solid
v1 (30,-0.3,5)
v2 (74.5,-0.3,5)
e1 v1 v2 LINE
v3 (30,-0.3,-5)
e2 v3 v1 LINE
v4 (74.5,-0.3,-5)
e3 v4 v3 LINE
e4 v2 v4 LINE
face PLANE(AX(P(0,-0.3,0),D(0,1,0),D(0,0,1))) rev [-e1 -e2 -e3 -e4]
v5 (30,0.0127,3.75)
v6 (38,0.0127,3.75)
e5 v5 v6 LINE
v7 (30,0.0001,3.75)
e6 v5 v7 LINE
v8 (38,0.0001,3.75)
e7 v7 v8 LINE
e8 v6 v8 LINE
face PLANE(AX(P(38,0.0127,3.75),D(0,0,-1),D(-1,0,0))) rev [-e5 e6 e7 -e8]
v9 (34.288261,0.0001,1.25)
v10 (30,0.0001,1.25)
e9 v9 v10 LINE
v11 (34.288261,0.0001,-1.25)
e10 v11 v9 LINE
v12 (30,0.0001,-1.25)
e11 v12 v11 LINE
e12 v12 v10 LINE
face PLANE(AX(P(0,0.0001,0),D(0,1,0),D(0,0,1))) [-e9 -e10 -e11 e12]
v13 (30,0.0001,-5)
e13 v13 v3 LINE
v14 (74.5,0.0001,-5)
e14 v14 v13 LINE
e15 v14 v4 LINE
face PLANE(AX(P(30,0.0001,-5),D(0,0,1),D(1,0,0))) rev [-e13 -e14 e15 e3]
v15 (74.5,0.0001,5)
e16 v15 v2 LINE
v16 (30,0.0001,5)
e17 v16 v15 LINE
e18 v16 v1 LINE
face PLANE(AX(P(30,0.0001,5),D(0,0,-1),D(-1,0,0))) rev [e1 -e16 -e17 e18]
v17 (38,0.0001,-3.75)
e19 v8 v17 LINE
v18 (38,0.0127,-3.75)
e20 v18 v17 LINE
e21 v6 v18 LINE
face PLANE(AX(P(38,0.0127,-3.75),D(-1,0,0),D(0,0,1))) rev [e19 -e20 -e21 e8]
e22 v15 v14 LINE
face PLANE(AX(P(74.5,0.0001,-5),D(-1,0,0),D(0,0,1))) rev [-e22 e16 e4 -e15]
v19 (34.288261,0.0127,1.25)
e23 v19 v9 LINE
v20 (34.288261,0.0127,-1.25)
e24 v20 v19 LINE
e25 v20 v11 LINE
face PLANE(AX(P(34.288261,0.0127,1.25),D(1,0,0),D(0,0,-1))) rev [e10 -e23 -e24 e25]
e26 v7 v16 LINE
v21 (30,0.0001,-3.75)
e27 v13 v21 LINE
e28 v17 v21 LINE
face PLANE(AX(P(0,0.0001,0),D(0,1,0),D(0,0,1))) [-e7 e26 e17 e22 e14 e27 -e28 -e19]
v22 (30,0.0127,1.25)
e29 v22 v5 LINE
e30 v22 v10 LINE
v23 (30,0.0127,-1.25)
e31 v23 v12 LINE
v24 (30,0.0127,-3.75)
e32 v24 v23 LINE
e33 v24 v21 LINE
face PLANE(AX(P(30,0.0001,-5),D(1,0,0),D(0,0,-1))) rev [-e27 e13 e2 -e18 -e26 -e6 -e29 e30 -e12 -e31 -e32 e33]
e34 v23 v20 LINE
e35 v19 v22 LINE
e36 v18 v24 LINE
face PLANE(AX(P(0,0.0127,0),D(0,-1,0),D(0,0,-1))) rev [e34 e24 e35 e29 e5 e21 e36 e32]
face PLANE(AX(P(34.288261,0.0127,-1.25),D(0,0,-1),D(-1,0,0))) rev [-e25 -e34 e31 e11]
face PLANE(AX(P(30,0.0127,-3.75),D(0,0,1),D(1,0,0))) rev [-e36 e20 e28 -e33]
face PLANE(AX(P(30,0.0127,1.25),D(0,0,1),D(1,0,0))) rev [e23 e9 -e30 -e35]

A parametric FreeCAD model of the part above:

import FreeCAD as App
import Part
import Sketcher
from FreeCAD import Vector

doc = App.newDocument("Part")
body = doc.addObject("PartDesign::Body", "Body")

# Sketch on XZ plane
sketch1 = body.newObject("Sketcher::SketchObject", "Sketch")
sketch1.AttachmentSupport = (doc.getObject("XZ_Plane"), [""])
sketch1.MapMode = "FlatFace"
sketch1.addGeometry([
    Part.LineSegment(Vector(30, -5, 0), Vector(30, 5, 0)),
    Part.LineSegment(Vector(30, 5, 0), Vector(74, 5, 0)),
    Part.LineSegment(Vector(74, 5, 0), Vector(74, -5, 0)),
    Part.LineSegment(Vector(74, -5, 0), Vector(30, -5, 0)),
], False)
sketch1.addConstraint([
    Sketcher.Constraint("Coincident", 0, 2, 1, 1),
    Sketcher.Constraint("Coincident", 1, 2, 2, 1),
    Sketcher.Constraint("Coincident", 2, 2, 3, 1),
    Sketcher.Constraint("Coincident", 3, 2, 0, 1),
    Sketcher.Constraint("Vertical", 0),
    Sketcher.Constraint("Horizontal", 1),
    Sketcher.Constraint("Vertical", 2),
    Sketcher.Constraint("Horizontal", 3),
    Sketcher.Constraint("DistanceY", 0, 1, 0, 2, 10.0),
    Sketcher.Constraint("DistanceX", 1, 1, 1, 2, 44.5),
    Sketcher.Constraint("DistanceX", -1, 1, 0, 2, 30.0),
    Sketcher.Constraint("DistanceY", -1, 1, 0, 2, 5.0),
])
pad1 = body.newObject("PartDesign::Pad", "Pad")
pad1.Profile = sketch1
pad1.Type = "TwoLengths"
pad1.Length = 0.0001
pad1.Length2 = 0.3
pad1.Reversed = True

# Sketch on XZ plane
sketch2 = body.newObject("Sketcher::SketchObject", "Sketch001")
sketch2.AttachmentSupport = (doc.getObject("XZ_Plane"), [""])
sketch2.MapMode = "FlatFace"
sketch2.AttachmentOffset = App.Placement(Vector(0, 0, -0.0001), App.Rotation())
sketch2.addGeometry([
    Part.LineSegment(Vector(38, -3.8, 0), Vector(30, -3.8, 0)),  # 0
    Part.LineSegment(Vector(30, -3.8, 0), Vector(30, -1.2, 0)),  # 1
    Part.LineSegment(Vector(30, -1.2, 0), Vector(34.3, -1.2, 0)),  # 2
    Part.LineSegment(Vector(34.3, -1.2, 0), Vector(34.3, 1.2, 0)),  # 3
    Part.LineSegment(Vector(34.3, 1.2, 0), Vector(30, 1.2, 0)),  # 4
    Part.LineSegment(Vector(30, 1.2, 0), Vector(30, 3.8, 0)),  # 5
    Part.LineSegment(Vector(30, 3.8, 0), Vector(38, 3.8, 0)),  # 6
    Part.LineSegment(Vector(38, 3.8, 0), Vector(38, -3.8, 0)),  # 7
], False)
sketch2.addConstraint([
    Sketcher.Constraint("Coincident", 0, 2, 1, 1),
    Sketcher.Constraint("Coincident", 1, 2, 2, 1),
    Sketcher.Constraint("Coincident", 2, 2, 3, 1),
    Sketcher.Constraint("Coincident", 3, 2, 4, 1),
    Sketcher.Constraint("Coincident", 4, 2, 5, 1),
    Sketcher.Constraint("Coincident", 5, 2, 6, 1),
    Sketcher.Constraint("Coincident", 6, 2, 7, 1),
    Sketcher.Constraint("Coincident", 7, 2, 0, 1),
    Sketcher.Constraint("Horizontal", 0),
    Sketcher.Constraint("Vertical", 1),
    Sketcher.Constraint("Horizontal", 2),
    Sketcher.Constraint("Vertical", 3),
    Sketcher.Constraint("Horizontal", 4),
    Sketcher.Constraint("Vertical", 5),
    Sketcher.Constraint("Horizontal", 6),
    Sketcher.Constraint("Vertical", 7),
    Sketcher.Constraint("Symmetric", 1, 2, 4, 2, -1),
    Sketcher.Constraint("Equal", 1, 3),
    Sketcher.Constraint("Equal", 3, 5),
    Sketcher.Constraint("DistanceX", 0, 2, 0, 1, 8.0),
    Sketcher.Constraint("DistanceY", 1, 1, 1, 2, 2.5),
    Sketcher.Constraint("DistanceX", -1, 1, 0, 2, 30.0),
    Sketcher.Constraint("DistanceX", 2, 1, 2, 2, 4.288261),
])
pad2 = body.newObject("PartDesign::Pad", "Pad001")
pad2.Profile = sketch2
pad2.Length = 0.0126
pad2.Reversed = True

doc.recompute()
